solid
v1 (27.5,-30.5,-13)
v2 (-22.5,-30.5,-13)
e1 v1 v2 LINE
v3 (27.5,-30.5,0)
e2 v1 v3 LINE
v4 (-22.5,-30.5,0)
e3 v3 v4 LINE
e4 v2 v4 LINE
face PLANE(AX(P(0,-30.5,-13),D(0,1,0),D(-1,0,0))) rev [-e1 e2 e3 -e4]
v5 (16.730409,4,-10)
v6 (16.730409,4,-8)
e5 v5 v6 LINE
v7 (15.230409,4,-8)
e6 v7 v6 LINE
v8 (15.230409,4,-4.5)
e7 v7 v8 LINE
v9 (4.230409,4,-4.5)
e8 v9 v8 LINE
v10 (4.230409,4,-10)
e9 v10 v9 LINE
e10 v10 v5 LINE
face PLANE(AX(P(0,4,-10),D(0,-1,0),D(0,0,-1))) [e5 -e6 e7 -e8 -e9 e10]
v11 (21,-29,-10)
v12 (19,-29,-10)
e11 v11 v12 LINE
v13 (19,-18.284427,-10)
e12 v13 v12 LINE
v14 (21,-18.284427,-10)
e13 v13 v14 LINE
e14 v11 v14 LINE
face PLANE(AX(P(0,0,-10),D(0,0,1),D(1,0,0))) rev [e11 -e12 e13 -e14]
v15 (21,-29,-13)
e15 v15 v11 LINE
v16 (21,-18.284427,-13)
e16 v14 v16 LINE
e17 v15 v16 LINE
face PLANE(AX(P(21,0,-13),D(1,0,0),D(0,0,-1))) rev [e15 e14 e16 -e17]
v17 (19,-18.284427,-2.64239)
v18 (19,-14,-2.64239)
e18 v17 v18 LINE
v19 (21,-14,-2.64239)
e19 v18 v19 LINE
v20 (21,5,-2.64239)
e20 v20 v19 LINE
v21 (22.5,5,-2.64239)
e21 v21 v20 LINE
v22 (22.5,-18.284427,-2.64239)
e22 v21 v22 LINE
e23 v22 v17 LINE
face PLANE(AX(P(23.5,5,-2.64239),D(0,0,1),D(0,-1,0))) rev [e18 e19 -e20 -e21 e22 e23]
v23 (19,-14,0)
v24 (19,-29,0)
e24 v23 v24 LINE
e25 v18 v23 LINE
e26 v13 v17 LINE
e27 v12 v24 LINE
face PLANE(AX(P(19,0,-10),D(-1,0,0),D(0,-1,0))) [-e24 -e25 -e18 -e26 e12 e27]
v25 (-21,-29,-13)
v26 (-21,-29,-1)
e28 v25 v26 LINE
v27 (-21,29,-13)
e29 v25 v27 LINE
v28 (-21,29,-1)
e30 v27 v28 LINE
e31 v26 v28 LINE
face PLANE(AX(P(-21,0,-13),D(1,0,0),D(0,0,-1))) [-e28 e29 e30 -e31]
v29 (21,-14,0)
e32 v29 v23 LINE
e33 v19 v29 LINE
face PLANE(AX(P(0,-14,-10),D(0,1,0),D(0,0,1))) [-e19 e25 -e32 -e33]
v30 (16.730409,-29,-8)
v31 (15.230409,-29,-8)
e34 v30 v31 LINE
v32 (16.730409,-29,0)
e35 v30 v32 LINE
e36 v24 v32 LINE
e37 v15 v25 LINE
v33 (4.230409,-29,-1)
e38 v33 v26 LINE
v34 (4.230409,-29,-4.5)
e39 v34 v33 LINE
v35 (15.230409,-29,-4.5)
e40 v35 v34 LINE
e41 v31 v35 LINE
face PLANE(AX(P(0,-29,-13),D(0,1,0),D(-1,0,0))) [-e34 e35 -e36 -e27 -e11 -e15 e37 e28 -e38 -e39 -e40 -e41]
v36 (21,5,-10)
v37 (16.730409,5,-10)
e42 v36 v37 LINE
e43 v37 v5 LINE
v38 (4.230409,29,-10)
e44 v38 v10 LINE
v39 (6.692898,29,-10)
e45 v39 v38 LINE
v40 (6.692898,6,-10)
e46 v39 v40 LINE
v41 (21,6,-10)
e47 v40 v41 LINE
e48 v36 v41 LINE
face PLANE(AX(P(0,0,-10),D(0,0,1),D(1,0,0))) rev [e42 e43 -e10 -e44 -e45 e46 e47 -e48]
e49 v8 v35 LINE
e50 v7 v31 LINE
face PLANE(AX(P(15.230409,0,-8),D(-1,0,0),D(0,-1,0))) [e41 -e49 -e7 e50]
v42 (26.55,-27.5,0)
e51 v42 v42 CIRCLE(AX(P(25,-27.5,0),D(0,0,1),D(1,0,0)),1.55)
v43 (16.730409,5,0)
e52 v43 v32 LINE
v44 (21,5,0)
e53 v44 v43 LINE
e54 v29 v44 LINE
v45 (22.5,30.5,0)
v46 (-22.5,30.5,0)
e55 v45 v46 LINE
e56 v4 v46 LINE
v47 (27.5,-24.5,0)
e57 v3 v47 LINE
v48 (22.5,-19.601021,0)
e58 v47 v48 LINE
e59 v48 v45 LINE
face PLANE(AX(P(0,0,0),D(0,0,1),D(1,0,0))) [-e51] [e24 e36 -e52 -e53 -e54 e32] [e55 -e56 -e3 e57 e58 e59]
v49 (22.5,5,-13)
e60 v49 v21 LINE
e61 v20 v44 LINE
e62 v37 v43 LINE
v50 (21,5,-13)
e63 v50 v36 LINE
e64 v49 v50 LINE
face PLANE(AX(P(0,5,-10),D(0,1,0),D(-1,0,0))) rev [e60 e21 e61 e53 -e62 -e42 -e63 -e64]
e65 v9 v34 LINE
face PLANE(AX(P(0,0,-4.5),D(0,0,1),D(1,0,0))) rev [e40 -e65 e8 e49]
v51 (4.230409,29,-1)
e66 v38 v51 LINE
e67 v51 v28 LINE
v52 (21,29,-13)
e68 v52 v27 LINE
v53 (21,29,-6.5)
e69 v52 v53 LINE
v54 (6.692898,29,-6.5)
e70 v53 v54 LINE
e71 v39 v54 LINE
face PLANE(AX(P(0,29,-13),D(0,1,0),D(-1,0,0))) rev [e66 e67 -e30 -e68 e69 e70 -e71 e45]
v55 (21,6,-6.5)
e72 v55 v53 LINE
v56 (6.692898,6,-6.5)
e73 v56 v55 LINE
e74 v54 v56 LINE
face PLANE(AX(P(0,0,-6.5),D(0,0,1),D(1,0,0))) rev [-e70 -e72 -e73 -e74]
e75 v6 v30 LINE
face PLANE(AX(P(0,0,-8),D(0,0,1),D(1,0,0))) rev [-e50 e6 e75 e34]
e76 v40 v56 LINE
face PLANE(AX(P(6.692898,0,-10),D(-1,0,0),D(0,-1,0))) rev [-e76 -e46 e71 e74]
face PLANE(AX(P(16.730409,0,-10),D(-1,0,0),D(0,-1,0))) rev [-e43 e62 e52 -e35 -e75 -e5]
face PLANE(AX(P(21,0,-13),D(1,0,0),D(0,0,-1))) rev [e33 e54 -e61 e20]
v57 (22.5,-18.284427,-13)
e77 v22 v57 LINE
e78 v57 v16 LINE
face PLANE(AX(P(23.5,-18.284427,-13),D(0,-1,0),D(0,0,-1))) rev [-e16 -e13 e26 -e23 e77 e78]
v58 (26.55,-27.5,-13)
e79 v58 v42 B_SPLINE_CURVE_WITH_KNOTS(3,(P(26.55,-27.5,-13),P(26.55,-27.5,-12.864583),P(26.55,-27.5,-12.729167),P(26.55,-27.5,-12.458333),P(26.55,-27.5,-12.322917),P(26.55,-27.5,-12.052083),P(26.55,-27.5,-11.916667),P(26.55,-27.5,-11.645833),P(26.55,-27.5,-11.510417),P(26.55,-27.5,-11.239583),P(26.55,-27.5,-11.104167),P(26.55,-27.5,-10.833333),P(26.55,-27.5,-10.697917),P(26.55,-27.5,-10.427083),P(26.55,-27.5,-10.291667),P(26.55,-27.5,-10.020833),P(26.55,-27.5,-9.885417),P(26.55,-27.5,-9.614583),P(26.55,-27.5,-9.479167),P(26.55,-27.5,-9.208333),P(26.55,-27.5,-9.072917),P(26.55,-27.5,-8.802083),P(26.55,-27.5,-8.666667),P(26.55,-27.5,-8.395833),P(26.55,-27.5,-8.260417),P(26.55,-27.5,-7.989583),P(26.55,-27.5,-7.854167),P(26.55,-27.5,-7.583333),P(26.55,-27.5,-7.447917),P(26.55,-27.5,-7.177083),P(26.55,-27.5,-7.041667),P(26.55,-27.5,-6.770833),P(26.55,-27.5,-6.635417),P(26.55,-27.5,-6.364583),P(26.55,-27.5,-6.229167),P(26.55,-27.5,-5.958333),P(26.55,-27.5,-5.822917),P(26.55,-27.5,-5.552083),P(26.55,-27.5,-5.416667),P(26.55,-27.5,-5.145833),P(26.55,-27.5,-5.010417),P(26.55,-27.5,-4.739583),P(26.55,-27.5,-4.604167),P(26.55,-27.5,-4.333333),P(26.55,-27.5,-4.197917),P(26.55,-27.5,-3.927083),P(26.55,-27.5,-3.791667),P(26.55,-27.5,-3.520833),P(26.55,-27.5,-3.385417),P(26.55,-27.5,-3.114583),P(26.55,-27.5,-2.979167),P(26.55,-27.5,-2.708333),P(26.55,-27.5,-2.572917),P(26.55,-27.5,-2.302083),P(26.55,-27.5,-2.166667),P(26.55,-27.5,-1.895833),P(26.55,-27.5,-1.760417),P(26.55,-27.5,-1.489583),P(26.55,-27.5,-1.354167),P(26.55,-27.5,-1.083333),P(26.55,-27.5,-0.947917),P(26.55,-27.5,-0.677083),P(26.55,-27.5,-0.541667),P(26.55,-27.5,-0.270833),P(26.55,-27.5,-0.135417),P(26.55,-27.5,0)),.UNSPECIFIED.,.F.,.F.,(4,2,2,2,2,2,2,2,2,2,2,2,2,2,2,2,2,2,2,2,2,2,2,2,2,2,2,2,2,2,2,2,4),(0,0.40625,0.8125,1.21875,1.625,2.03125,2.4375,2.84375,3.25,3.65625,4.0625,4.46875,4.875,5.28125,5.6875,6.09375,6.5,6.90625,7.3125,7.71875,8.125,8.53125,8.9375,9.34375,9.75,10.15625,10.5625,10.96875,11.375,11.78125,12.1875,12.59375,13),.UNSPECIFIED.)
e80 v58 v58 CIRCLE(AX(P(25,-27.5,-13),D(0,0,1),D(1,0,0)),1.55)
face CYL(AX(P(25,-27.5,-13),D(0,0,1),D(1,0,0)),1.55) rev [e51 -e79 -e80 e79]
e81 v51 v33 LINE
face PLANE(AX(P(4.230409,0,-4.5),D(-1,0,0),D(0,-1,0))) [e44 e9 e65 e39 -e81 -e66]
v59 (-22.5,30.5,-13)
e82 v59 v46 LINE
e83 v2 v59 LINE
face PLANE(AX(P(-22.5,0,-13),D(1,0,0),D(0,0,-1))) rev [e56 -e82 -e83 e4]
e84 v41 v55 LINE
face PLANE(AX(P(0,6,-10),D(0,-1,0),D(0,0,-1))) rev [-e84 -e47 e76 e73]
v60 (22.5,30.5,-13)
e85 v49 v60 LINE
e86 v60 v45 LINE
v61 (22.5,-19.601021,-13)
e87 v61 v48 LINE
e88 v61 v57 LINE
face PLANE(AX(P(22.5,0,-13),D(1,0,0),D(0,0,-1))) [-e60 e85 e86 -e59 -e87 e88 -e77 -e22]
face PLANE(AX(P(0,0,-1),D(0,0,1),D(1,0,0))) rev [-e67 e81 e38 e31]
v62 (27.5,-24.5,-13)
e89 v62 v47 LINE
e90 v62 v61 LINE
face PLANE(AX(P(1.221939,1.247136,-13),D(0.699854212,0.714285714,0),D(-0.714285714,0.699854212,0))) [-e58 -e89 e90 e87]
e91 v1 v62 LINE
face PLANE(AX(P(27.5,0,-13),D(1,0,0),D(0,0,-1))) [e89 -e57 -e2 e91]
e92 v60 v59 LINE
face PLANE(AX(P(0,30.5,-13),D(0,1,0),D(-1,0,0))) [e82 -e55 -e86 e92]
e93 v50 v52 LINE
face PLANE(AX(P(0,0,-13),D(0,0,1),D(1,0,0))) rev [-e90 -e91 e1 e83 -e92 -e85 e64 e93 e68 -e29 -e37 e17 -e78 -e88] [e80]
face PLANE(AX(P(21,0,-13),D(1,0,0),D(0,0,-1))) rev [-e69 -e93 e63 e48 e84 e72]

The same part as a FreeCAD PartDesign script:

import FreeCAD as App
import Part
import Sketcher

V = App.Vector

doc = App.newDocument("Part")
body = doc.addObject("PartDesign::Body", "Body")

# Sketch on XY plane
sketch1 = body.newObject("Sketcher::SketchObject", "Sketch")
sketch1.AttachmentSupport = (doc.getObject("XY_Plane"), [""])
sketch1.MapMode = "FlatFace"
sketch1.addGeometry([
    Part.LineSegment(V(-22.5, 30.5, 0), V(-22.5, -30.5, 0)),  # 0
    Part.LineSegment(V(-22.5, -30.5, 0), V(27.5, -30.5, 0)),  # 1
    Part.LineSegment(V(27.5, -30.5, 0), V(27.5, -24.5, 0)),  # 2
    Part.LineSegment(V(27.5, -24.5, 0), V(22.5, -19.6, 0)),  # 3
    Part.LineSegment(V(22.5, -19.6, 0), V(22.5, 30.5, 0)),  # 4
    Part.LineSegment(V(22.5, 30.5, 0), V(-22.5, 30.5, 0)),  # 5
    Part.LineSegment(V(21, -29, 0), V(-21, -29, 0)),  # 6
    Part.LineSegment(V(-21, -29, 0), V(-21, 29, 0)),  # 7
    Part.LineSegment(V(-21, 29, 0), V(21, 29, 0)),  # 8
    Part.LineSegment(V(21, 29, 0), V(21, -29, 0)),  # 9
    Part.Circle(V(25, -27.5, 0), V(0, 0, 1), 1.6),  # 10
], False)
sketch1.addConstraint([
    Sketcher.Constraint("Coincident", 0, 2, 1, 1),
    Sketcher.Constraint("Coincident", 1, 2, 2, 1),
    Sketcher.Constraint("Coincident", 2, 2, 3, 1),
    Sketcher.Constraint("Coincident", 3, 2, 4, 1),
    Sketcher.Constraint("Coincident", 4, 2, 5, 1),
    Sketcher.Constraint("Coincident", 5, 2, 0, 1),
    Sketcher.Constraint("Coincident", 6, 2, 7, 1),
    Sketcher.Constraint("Coincident", 7, 2, 8, 1),
    Sketcher.Constraint("Coincident", 8, 2, 9, 1),
    Sketcher.Constraint("Coincident", 9, 2, 6, 1),
    Sketcher.Constraint("Vertical", 0),
    Sketcher.Constraint("Horizontal", 1),
    Sketcher.Constraint("Vertical", 2),
    Sketcher.Constraint("Vertical", 4),
    Sketcher.Constraint("Horizontal", 5),
    Sketcher.Constraint("Horizontal", 6),
    Sketcher.Constraint("Vertical", 7),
    Sketcher.Constraint("Horizontal", 8),
    Sketcher.Constraint("Vertical", 9),
    Sketcher.Constraint("Symmetric", 0, 2, 4, 2, -1, 1),
    Sketcher.Constraint("Symmetric", 6, 2, 8, 2, -1, 1),
    Sketcher.Constraint("Diameter", 10, 3.1),
    Sketcher.Constraint("DistanceX", 1, 1, 1, 2, 50.0),
    Sketcher.Constraint("DistanceX", 5, 2, 5, 1, 45.0),
    Sketcher.Constraint("DistanceX", 6, 2, 6, 1, 42.0),
    Sketcher.Constraint("DistanceY", 0, 2, 0, 1, 61.0),
    Sketcher.Constraint("DistanceY", 2, 1, 2, 2, 6.0),
    Sketcher.Constraint("DistanceY", 7, 1, 7, 2, 58.0),
    Sketcher.Constraint("Distance", 3, 7.0),
    Sketcher.Constraint("DistanceX", -1, 1, 10, 3, 25.0),
    Sketcher.Constraint("DistanceY", 0, 2, 10, 3, 3.0),
])
pad1 = body.newObject("PartDesign::Pad", "Pad")
pad1.Profile = sketch1
pad1.Length = 13
pad1.Reversed = True

# Sketch on XY plane
sketch2 = body.newObject("Sketcher::SketchObject", "Sketch001")
sketch2.AttachmentSupport = (doc.getObject("XY_Plane"), [""])
sketch2.MapMode = "FlatFace"
sketch2.addGeometry([
    Part.LineSegment(V(-21, -29, 0), V(4, -29, 0)),
    Part.LineSegment(V(4, -29, 0), V(4, 29, 0)),
    Part.LineSegment(V(4, 29, 0), V(-21, 29, 0)),
    Part.LineSegment(V(-21, 29, 0), V(-21, -29, 0)),
], False)
sketch2.addConstraint([
    Sketcher.Constraint("Coincident", 0, 2, 1, 1),
    Sketcher.Constraint("Coincident", 1, 2, 2, 1),
    Sketcher.Constraint("Coincident", 2, 2, 3, 1),
    Sketcher.Constraint("Coincident", 3, 2, 0, 1),
    Sketcher.Constraint("Horizontal", 0),
    Sketcher.Constraint("Vertical", 1),
    Sketcher.Constraint("Horizontal", 2),
    Sketcher.Constraint("Vertical", 3),
    Sketcher.Constraint("DistanceY", 1, 1, 1, 2, 58.0),
    Sketcher.Constraint("DistanceY", 0, 2, -1, 1, 29.0),
    Sketcher.Constraint("DistanceX", 2, 2, -1, 1, 21.0),
    Sketcher.Constraint("DistanceX", 0, 1, 0, 2, 25.230409),
])
pad2 = body.newObject("PartDesign::Pad", "Pad001")
pad2.Profile = sketch2
pad2.Length = 1
pad2.Reversed = True

# Sketch on XY plane
sketch3 = body.newObject("Sketcher::SketchObject", "Sketch002")
sketch3.AttachmentSupport = (doc.getObject("XY_Plane"), [""])
sketch3.MapMode = "FlatFace"
sketch3.addGeometry([
    Part.LineSegment(V(4, 4, 0), V(4, -29, 0)),
    Part.LineSegment(V(4, -29, 0), V(15, -29, 0)),
    Part.LineSegment(V(15, -29, 0), V(15, 4, 0)),
    Part.LineSegment(V(15, 4, 0), V(4, 4, 0)),
], False)
sketch3.addConstraint([
    Sketcher.Constraint("Coincident", 0, 2, 1, 1),
    Sketcher.Constraint("Coincident", 1, 2, 2, 1),
    Sketcher.Constraint("Coincident", 2, 2, 3, 1),
    Sketcher.Constraint("Coincident", 3, 2, 0, 1),
    Sketcher.Constraint("Vertical", 0),
    Sketcher.Constraint("Horizontal", 1),
    Sketcher.Constraint("Vertical", 2),
    Sketcher.Constraint("Horizontal", 3),
    Sketcher.Constraint("DistanceX", 1, 1, 1, 2, 11.0),
    Sketcher.Constraint("DistanceY", 0, 2, 0, 1, 33.0),
    Sketcher.Constraint("DistanceY", 0, 2, -1, 1, 29.0),
    Sketcher.Constraint("DistanceX", -1, 1, 0, 2, 4.230409),
])
pad3 = body.newObject("PartDesign::Pad", "Pad002")
pad3.Profile = sketch3
pad3.Length = 4.5
pad3.Reversed = True

# Sketch on XY plane
sketch4 = body.newObject("Sketcher::SketchObject", "Sketch003")
sketch4.AttachmentSupport = (doc.getObject("XY_Plane"), [""])
sketch4.MapMode = "FlatFace"
sketch4.addGeometry([
    Part.LineSegment(V(7, 29, 0), V(7, 6, 0)),
    Part.LineSegment(V(7, 6, 0), V(21, 6, 0)),
    Part.LineSegment(V(21, 6, 0), V(21, 29, 0)),
    Part.LineSegment(V(21, 29, 0), V(7, 29, 0)),
], False)
sketch4.addConstraint([
    Sketcher.Constraint("Coincident", 0, 2, 1, 1),
    Sketcher.Constraint("Coincident", 1, 2, 2, 1),
    Sketcher.Constraint("Coincident", 2, 2, 3, 1),
    Sketcher.Constraint("Coincident", 3, 2, 0, 1),
    Sketcher.Constraint("Vertical", 0),
    Sketcher.Constraint("Horizontal", 1),
    Sketcher.Constraint("Vertical", 2),
    Sketcher.Constraint("Horizontal", 3),
    Sketcher.Constraint("DistanceY", 0, 2, 0, 1, 23.0),
    Sketcher.Constraint("DistanceY", -1, 1, 0, 2, 6.0),
    Sketcher.Constraint("DistanceX", -1, 1, 1, 2, 21.0),
    Sketcher.Constraint("DistanceX", 1, 1, 1, 2, 14.307102),
])
pad4 = body.newObject("PartDesign::Pad", "Pad003")
pad4.Profile = sketch4
pad4.Length = 6.5
pad4.Reversed = True

# Sketch on XY plane
sketch5 = body.newObject("Sketcher::SketchObject", "Sketch004")
sketch5.AttachmentSupport = (doc.getObject("XY_Plane"), [""])
sketch5.MapMode = "FlatFace"
sketch5.addGeometry([
    Part.LineSegment(V(16.7, 5, 0), V(21, 5, 0)),  # 0
    Part.LineSegment(V(21, 5, 0), V(21, 6, 0)),  # 1
    Part.LineSegment(V(21, 6, 0), V(6.7, 6, 0)),  # 2
    Part.LineSegment(V(6.7, 6, 0), V(6.7, 29, 0)),  # 3
    Part.LineSegment(V(6.7, 29, 0), V(4.2, 29, 0)),  # 4
    Part.LineSegment(V(4.2, 29, 0), V(4.2, 4, 0)),  # 5
    Part.LineSegment(V(4.2, 4, 0), V(16.7, 4, 0)),  # 6
    Part.LineSegment(V(16.7, 4, 0), V(16.7, 5, 0)),  # 7
    Part.LineSegment(V(19, -14, 0), V(19, -29, 0)),  # 8
    Part.LineSegment(V(19, -29, 0), V(21, -29, 0)),  # 9
    Part.LineSegment(V(21, -29, 0), V(21, -14, 0)),  # 10
    Part.LineSegment(V(21, -14, 0), V(19, -14, 0)),  # 11
], False)
sketch5.addConstraint([
    Sketcher.Constraint("Coincident", 0, 2, 1, 1),
    Sketcher.Constraint("Coincident", 1, 2, 2, 1),
    Sketcher.Constraint("Coincident", 2, 2, 3, 1),
    Sketcher.Constraint("Coincident", 3, 2, 4, 1),
    Sketcher.Constraint("Coincident", 4, 2, 5, 1),
    Sketcher.Constraint("Coincident", 5, 2, 6, 1),
    Sketcher.Constraint("Coincident", 6, 2, 7, 1),
    Sketcher.Constraint("Coincident", 7, 2, 0, 1),
    Sketcher.Constraint("Coincident", 8, 2, 9, 1),
    Sketcher.Constraint("Coincident", 9, 2, 10, 1),
    Sketcher.Constraint("Coincident", 10, 2, 11, 1),
    Sketcher.Constraint("Coincident", 11, 2, 8, 1),
    Sketcher.Constraint("Horizontal", 0),
    Sketcher.Constraint("Vertical", 1),
    Sketcher.Constraint("Horizontal", 2),
    Sketcher.Constraint("Vertical", 3),
    Sketcher.Constraint("Horizontal", 4),
    Sketcher.Constraint("Vertical", 5),
    Sketcher.Constraint("Horizontal", 6),
    Sketcher.Constraint("Vertical", 7),
    Sketcher.Constraint("Vertical", 8),
    Sketcher.Constraint("Horizontal", 9),
    Sketcher.Constraint("Vertical", 10),
    Sketcher.Constraint("Horizontal", 11),
    Sketcher.Constraint("Vertical", 1, 2, 9, 2),
    Sketcher.Constraint("Equal", 1, 7),
    Sketcher.Constraint("DistanceX", 9, 1, 9, 2, 2.0),
    Sketcher.Constraint("DistanceY", 1, 1, 1, 2, 1.0),
    Sketcher.Constraint("DistanceY", 3, 1, 3, 2, 23.0),
    Sketcher.Constraint("DistanceY", 8, 2, 8, 1, 15.0),
    Sketcher.Constraint("DistanceX", 6, 1, 6, 2, 12.5),
    Sketcher.Constraint("DistanceX", -1, 1, 0, 2, 21.0),
    Sketcher.Constraint("DistanceY", -1, 1, 0, 2, 5.0),
    Sketcher.Constraint("DistanceY", 8, 2, -1, 1, 29.0),
    Sketcher.Constraint("DistanceX", 2, 2, 2, 1, 14.307102),
    Sketcher.Constraint("DistanceX", 0, 1, 0, 2, 4.269591),
])
pad5 = body.newObject("PartDesign::Pad", "Pad004")
pad5.Profile = sketch5
pad5.Length = 10
pad5.Reversed = True

# Sketch on XY plane
sketch6 = body.newObject("Sketcher::SketchObject", "Sketch005")
sketch6.AttachmentSupport = (doc.getObject("XY_Plane"), [""])
sketch6.MapMode = "FlatFace"
sketch6.addGeometry([
    Part.LineSegment(V(15.2, 4, 0), V(15.2, -29, 0)),
    Part.LineSegment(V(15.2, -29, 0), V(16.7, -29, 0)),
    Part.LineSegment(V(16.7, -29, 0), V(16.7, 4, 0)),
    Part.LineSegment(V(16.7, 4, 0), V(15.2, 4, 0)),
], False)
sketch6.addConstraint([
    Sketcher.Constraint("Coincident", 0, 2, 1, 1),
    Sketcher.Constraint("Coincident", 1, 2, 2, 1),
    Sketcher.Constraint("Coincident", 2, 2, 3, 1),
    Sketcher.Constraint("Coincident", 3, 2, 0, 1),
    Sketcher.Constraint("Vertical", 0),
    Sketcher.Constraint("Horizontal", 1),
    Sketcher.Constraint("Vertical", 2),
    Sketcher.Constraint("Horizontal", 3),
    Sketcher.Constraint("DistanceY", 0, 2, 0, 1, 33.0),
    Sketcher.Constraint("DistanceX", 1, 1, 1, 2, 1.5),
    Sketcher.Constraint("DistanceY", 0, 2, -1, 1, 29.0),
    Sketcher.Constraint("DistanceX", -1, 1, 0, 2, 15.230409),
])
pad6 = body.newObject("PartDesign::Pad", "Pad005")
pad6.Profile = sketch6
pad6.Length = 8
pad6.Reversed = True

# Sketch on YZ plane
sketch7 = body.newObject("Sketcher::SketchObject", "Sketch006")
sketch7.AttachmentSupport = (doc.getObject("YZ_Plane"), [""])
sketch7.MapMode = "FlatFace"
sketch7.AttachmentOffset = App.Placement(V(0, 0, 21), App.Rotation())
sketch7.addGeometry([
    Part.LineSegment(V(5, -13, 0), V(-18, -13, 0)),
    Part.LineSegment(V(-18, -13, 0), V(-18, -3, 0)),
    Part.LineSegment(V(-18, -3, 0), V(5, -3, 0)),
    Part.LineSegment(V(5, -3, 0), V(5, -13, 0)),
], False)
sketch7.addConstraint([
    Sketcher.Constraint("Coincident", 0, 2, 1, 1),
    Sketcher.Constraint("Coincident", 1, 2, 2, 1),
    Sketcher.Constraint("Coincident", 2, 2, 3, 1),
    Sketcher.Constraint("Coincident", 3, 2, 0, 1),
    Sketcher.Constraint("Horizontal", 0),
    Sketcher.Constraint("Vertical", 1),
    Sketcher.Constraint("Horizontal", 2),
    Sketcher.Constraint("Vertical", 3),
    Sketcher.Constraint("DistanceY", 0, 2, -1, 1, 13.0),
    Sketcher.Constraint("DistanceX", -1, 1, 2, 2, 5.0),
    Sketcher.Constraint("DistanceY", 1, 1, 1, 2, 10.35761),
    Sketcher.Constraint("DistanceX", 0, 2, 0, 1, 23.284427),
])
pocket1 = body.newObject("PartDesign::Pocket", "Pocket")
pocket1.Profile = sketch7
pocket1.Length = 5
pocket1.Midplane = True

doc.recompute()
